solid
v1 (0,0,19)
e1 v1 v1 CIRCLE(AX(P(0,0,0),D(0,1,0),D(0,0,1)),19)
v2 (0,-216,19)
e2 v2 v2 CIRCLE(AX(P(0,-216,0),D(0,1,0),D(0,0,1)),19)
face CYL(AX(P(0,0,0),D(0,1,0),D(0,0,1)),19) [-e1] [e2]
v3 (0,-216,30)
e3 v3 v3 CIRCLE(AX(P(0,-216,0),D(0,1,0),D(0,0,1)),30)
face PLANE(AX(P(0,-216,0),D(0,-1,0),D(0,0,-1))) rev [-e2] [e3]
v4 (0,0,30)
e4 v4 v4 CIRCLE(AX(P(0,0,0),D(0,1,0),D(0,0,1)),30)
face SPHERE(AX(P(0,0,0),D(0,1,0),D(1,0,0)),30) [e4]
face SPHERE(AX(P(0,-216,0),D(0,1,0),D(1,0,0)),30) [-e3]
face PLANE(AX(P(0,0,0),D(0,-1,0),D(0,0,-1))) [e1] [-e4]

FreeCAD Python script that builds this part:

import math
import FreeCAD as App
import Part
import Sketcher
from FreeCAD import Vector

doc = App.newDocument("Part")
body = doc.addObject("PartDesign::Body", "Body")

# Sketch on XY plane
sketch1 = body.newObject("Sketcher::SketchObject", "Sketch")
sketch1.AttachmentSupport = (doc.getObject("XY_Plane"), [""])
sketch1.MapMode = "FlatFace"
sketch1.addGeometry([
    Part.ArcOfCircle(Part.Circle(Vector(0, -216, 0), Vector(0, 0, 1), 30), math.radians(180), math.radians(270)),  # 0
    Part.LineSegment(Vector(0, -246, 0), Vector(0, 30, 0)),  # 1
    Part.ArcOfCircle(Part.Circle(Vector(0, 0, 0), Vector(0, 0, 1), 30), math.radians(90), math.radians(180)),  # 2
    Part.LineSegment(Vector(-30, 0, 0), Vector(-19, 0, 0)),  # 3
    Part.LineSegment(Vector(-19, 0, 0), Vector(-19, -216, 0)),  # 4
    Part.LineSegment(Vector(-19, -216, 0), Vector(-30, -216, 0)),  # 5
], False)
sketch1.addConstraint([
    Sketcher.Constraint("Coincident", 0, 2, 1, 1),
    Sketcher.Constraint("Coincident", 1, 2, 2, 1),
    Sketcher.Constraint("Coincident", 2, 2, 3, 1),
    Sketcher.Constraint("Coincident", 3, 2, 4, 1),
    Sketcher.Constraint("Coincident", 4, 2, 5, 1),
    Sketcher.Constraint("Coincident", 5, 2, 0, 1),
    Sketcher.Constraint("Vertical", 1),
    Sketcher.Constraint("Horizontal", 3),
    Sketcher.Constraint("Vertical", 4),
    Sketcher.Constraint("Horizontal", 5),
    Sketcher.Constraint("Coincident", 2, 3, -1, 1),
    Sketcher.Constraint("Equal", 0, 2),
    Sketcher.Constraint("PointOnObject", 0, 3, -2),
    Sketcher.Constraint("PointOnObject", 0, 2, -2),
    Sketcher.Constraint("PointOnObject", 2, 2, -1),
    Sketcher.Constraint("Horizontal", 0, 3, 4, 2),
    Sketcher.Constraint("Radius", 0, 30.0),
    Sketcher.Constraint("DistanceX", 3, 1, 3, 2, 11.0),
    Sketcher.Constraint("DistanceY", 1, 1, 1, 2, 276.0),
])
revolution = body.newObject("PartDesign::Revolution", "Revolution")
revolution.Profile = sketch1
revolution.ReferenceAxis = (sketch1, ["V_Axis"])
revolution.Angle = 360

doc.recompute()
